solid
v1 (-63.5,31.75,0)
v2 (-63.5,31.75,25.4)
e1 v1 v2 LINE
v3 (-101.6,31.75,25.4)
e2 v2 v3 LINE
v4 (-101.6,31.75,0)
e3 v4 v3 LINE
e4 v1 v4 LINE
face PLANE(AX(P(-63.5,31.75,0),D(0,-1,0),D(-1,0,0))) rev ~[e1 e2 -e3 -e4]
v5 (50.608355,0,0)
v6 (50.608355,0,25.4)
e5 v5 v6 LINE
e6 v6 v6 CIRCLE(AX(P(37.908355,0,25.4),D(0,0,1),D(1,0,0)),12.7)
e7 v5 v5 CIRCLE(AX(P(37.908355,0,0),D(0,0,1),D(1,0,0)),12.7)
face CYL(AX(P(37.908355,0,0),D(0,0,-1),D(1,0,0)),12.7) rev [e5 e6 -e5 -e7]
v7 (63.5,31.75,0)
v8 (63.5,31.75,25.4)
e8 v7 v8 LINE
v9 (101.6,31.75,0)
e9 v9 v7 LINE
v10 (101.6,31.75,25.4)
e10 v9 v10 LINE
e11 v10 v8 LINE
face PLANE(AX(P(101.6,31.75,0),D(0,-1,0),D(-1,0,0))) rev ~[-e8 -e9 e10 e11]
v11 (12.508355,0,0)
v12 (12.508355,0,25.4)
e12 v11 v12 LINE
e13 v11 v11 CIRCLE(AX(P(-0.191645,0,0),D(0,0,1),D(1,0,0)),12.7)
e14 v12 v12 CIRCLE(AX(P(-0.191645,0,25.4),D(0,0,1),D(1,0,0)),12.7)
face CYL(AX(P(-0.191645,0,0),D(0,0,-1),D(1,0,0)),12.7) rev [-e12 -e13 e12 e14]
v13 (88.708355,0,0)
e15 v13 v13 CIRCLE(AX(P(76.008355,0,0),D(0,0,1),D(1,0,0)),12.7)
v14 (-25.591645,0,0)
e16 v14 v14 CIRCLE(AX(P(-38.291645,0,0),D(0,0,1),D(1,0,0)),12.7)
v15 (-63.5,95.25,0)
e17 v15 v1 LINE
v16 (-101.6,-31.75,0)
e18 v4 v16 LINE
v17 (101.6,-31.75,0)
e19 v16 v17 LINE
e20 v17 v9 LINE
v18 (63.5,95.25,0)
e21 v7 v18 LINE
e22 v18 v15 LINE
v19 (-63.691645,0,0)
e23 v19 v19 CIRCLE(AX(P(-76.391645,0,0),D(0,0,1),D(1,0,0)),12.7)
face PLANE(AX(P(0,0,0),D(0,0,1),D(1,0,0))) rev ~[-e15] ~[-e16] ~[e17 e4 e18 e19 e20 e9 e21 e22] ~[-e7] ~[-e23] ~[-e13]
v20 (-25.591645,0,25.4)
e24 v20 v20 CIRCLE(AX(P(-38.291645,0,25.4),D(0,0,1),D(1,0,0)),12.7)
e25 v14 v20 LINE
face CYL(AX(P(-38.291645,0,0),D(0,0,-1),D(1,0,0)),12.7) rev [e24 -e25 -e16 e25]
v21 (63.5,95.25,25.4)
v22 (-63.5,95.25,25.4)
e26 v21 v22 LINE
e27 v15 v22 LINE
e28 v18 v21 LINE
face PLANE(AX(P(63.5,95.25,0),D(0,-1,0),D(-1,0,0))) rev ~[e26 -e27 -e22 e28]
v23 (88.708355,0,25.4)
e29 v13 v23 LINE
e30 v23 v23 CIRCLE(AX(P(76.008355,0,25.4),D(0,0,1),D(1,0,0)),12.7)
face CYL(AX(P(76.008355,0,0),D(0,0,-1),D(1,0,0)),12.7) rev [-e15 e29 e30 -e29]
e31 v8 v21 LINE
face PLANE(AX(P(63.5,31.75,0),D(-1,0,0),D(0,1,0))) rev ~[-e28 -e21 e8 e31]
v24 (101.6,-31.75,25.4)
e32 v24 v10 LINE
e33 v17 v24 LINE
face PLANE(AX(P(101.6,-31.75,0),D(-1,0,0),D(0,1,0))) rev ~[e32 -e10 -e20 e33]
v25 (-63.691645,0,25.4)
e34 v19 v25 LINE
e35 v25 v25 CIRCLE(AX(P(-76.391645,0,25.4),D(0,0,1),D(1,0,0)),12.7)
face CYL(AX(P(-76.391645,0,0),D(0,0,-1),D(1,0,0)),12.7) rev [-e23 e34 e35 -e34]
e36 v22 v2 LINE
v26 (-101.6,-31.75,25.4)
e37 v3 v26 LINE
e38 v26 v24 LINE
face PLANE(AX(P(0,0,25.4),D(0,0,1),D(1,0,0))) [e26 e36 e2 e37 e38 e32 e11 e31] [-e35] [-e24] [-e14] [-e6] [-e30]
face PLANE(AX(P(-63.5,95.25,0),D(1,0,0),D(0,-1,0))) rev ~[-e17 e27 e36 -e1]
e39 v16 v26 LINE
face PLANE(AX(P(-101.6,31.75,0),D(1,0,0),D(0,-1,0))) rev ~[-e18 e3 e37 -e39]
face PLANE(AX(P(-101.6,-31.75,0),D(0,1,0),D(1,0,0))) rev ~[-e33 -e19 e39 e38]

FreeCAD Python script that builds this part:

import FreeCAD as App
import Part
import Sketcher
Q = App.Units.Quantity

doc = App.newDocument("Part")
body = doc.addObject("PartDesign::Body", "Body")

# Sketch on XY plane
sketch1 = body.newObject("Sketcher::SketchObject", "Sketch")
sketch1.AttachmentSupport = (doc.getObject("XY_Plane"), [""])
sketch1.MapMode = "FlatFace"
sketch1.addGeometry(Part.LineSegment(App.Vector(102, -32, 0), App.Vector(102, 32, 0)), False)
sketch1.addGeometry(Part.LineSegment(App.Vector(102, 32, 0), App.Vector(64, 32, 0)), False)
sketch1.addGeometry(Part.LineSegment(App.Vector(64, 32, 0), App.Vector(64, 95, 0)), False)
sketch1.addGeometry(Part.LineSegment(App.Vector(64, 95, 0), App.Vector(-64, 95, 0)), False)
sketch1.addGeometry(Part.LineSegment(App.Vector(-64, 95, 0), App.Vector(-64, 32, 0)), False)
sketch1.addGeometry(Part.LineSegment(App.Vector(-64, 32, 0), App.Vector(-102, 32, 0)), False)
sketch1.addGeometry(Part.LineSegment(App.Vector(-102, 32, 0), App.Vector(-102, -32, 0)), False)
sketch1.addGeometry(Part.LineSegment(App.Vector(-102, -32, 0), App.Vector(102, -32, 0)), False)
sketch1.addGeometry(Part.Circle(App.Vector(-76, 0, 0), App.Vector(0, 0, 1), 13), False)
sketch1.addGeometry(Part.Circle(App.Vector(-38, 0, 0), App.Vector(0, 0, 1), 13), False)
sketch1.addGeometry(Part.Circle(App.Vector(0, 0, 0), App.Vector(0, 0, 1), 13), False)
sketch1.addGeometry(Part.Circle(App.Vector(38, 0, 0), App.Vector(0, 0, 1), 13), False)
sketch1.addGeometry(Part.Circle(App.Vector(76, 0, 0), App.Vector(0, 0, 1), 13), False)
sketch1.addConstraint(Sketcher.Constraint("Coincident", 0, 2, 1, 1))
sketch1.addConstraint(Sketcher.Constraint("Coincident", 1, 2, 2, 1))
sketch1.addConstraint(Sketcher.Constraint("Coincident", 2, 2, 3, 1))
sketch1.addConstraint(Sketcher.Constraint("Coincident", 3, 2, 4, 1))
sketch1.addConstraint(Sketcher.Constraint("Coincident", 4, 2, 5, 1))
sketch1.addConstraint(Sketcher.Constraint("Coincident", 5, 2, 6, 1))
sketch1.addConstraint(Sketcher.Constraint("Coincident", 6, 2, 7, 1))
sketch1.addConstraint(Sketcher.Constraint("Coincident", 7, 2, 0, 1))
sketch1.addConstraint(Sketcher.Constraint("Vertical", 0))
sketch1.addConstraint(Sketcher.Constraint("Horizontal", 1))
sketch1.addConstraint(Sketcher.Constraint("Vertical", 2))
sketch1.addConstraint(Sketcher.Constraint("Horizontal", 3))
sketch1.addConstraint(Sketcher.Constraint("Vertical", 4))
sketch1.addConstraint(Sketcher.Constraint("Horizontal", 5))
sketch1.addConstraint(Sketcher.Constraint("Vertical", 6))
sketch1.addConstraint(Sketcher.Constraint("Horizontal", 7))
sketch1.addConstraint(Sketcher.Constraint("Equal", 8, 9))
sketch1.addConstraint(Sketcher.Constraint("Equal", 9, 10))
sketch1.addConstraint(Sketcher.Constraint("Equal", 10, 11))
sketch1.addConstraint(Sketcher.Constraint("Equal", 11, 12))
sketch1.addConstraint(Sketcher.Constraint("Symmetric", 0, 2, 6, 2, -1, 1))
sketch1.addConstraint(Sketcher.Constraint("Symmetric", 1, 2, 4, 2, -2))
sketch1.addConstraint(Sketcher.Constraint("PointOnObject", 8, 3, -1))
sketch1.addConstraint(Sketcher.Constraint("PointOnObject", 9, 3, -1))
sketch1.addConstraint(Sketcher.Constraint("PointOnObject", 10, 3, -1))
sketch1.addConstraint(Sketcher.Constraint("PointOnObject", 11, 3, -1))
sketch1.addConstraint(Sketcher.Constraint("PointOnObject", 12, 3, -1))
sketch1.addConstraint(Sketcher.Constraint("Equal", 0, 2))
sketch1.addConstraint(Sketcher.Constraint("Diameter", 8, Q("1 in")))
sketch1.addConstraint(Sketcher.Constraint("DistanceX", 3, 2, 3, 1, Q("5 in")))
sketch1.addConstraint(Sketcher.Constraint("DistanceX", 7, 1, 7, 2, Q("8 in")))
sketch1.addConstraint(Sketcher.Constraint("DistanceY", 0, 1, 0, 2, Q("2.5 in")))
sketch1.addConstraint(Sketcher.Constraint("DistanceX", 8, 3, 10, 3, Q("3 in")))
sketch1.addConstraint(Sketcher.Constraint("DistanceX", 9, 3, 11, 3, Q("3 in")))
sketch1.addConstraint(Sketcher.Constraint("DistanceX", 10, 3, 12, 3, Q("3 in")))
sketch1.addConstraint(Sketcher.Constraint("DistanceX", 8, 3, 9, 3, Q("1.5 in")))
sketch1.addConstraint(Sketcher.Constraint("DistanceX", 8, 3, -1, 1, 76.391645))
pad1 = body.newObject("PartDesign::Pad", "Pad")
pad1.Profile = sketch1
pad1.Length = Q("1 in")

doc.recompute()
